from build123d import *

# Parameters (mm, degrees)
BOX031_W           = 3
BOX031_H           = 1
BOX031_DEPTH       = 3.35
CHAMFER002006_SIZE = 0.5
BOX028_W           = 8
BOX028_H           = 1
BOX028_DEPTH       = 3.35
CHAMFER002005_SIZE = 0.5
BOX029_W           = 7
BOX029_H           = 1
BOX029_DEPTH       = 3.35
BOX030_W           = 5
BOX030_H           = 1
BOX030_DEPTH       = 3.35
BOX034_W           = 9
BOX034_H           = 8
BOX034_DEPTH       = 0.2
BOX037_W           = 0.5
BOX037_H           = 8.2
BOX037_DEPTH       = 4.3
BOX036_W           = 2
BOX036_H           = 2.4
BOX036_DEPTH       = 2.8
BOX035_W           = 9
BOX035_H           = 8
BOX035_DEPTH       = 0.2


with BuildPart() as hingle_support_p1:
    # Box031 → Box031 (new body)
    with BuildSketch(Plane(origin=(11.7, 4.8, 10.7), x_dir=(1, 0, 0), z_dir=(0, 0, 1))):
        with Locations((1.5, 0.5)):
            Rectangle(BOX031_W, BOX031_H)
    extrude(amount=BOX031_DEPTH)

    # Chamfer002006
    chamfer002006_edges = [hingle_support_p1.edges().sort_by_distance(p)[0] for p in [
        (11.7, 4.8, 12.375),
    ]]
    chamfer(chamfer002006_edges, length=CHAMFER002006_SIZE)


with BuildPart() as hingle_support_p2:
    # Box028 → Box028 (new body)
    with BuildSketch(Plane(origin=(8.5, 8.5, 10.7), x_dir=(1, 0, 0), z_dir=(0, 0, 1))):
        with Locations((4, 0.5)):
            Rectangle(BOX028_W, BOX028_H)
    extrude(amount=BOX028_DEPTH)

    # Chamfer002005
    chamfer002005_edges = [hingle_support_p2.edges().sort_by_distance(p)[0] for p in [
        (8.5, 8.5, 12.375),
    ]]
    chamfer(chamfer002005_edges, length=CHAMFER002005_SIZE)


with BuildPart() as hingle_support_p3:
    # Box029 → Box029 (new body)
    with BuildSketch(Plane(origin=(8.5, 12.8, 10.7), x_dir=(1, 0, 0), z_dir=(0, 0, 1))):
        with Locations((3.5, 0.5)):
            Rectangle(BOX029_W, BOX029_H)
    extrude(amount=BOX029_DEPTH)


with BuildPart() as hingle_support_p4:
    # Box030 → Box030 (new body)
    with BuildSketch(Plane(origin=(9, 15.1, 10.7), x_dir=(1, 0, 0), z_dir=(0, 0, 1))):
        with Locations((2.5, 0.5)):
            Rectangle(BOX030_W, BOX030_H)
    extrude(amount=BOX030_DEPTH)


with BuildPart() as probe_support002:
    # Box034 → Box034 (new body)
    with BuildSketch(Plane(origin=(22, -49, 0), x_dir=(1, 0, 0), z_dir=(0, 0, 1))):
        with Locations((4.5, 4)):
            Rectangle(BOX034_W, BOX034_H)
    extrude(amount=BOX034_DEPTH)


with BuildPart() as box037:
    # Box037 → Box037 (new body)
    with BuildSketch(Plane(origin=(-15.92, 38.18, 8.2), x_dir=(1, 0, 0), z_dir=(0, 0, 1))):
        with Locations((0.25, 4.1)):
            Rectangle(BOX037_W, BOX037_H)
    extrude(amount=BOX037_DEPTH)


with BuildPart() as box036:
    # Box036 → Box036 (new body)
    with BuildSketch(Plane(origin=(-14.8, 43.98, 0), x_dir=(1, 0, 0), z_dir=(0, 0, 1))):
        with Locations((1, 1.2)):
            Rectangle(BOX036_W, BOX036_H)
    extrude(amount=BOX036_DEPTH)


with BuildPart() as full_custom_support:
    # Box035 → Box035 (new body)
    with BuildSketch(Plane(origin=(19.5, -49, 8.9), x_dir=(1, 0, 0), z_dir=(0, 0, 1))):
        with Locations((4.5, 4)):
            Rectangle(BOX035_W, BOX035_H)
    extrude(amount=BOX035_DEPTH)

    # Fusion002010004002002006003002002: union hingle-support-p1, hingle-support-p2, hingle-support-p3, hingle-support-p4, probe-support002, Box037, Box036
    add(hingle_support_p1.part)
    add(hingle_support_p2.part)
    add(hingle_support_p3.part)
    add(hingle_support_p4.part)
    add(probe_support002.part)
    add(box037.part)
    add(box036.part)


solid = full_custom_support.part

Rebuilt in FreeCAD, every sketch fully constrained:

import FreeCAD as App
import Part
import Sketcher


def edges_at(feature, points):
    """Names of the edges that pass closest to the given points."""
    edges = feature.Shape.Edges
    near = lambda p: min(range(len(edges)), key=lambda i: edges[i].distToShape(Part.Vertex(*p))[0])
    return sorted({f"Edge{near(p) + 1}" for p in points})

doc = App.newDocument("Part")
body = doc.addObject("PartDesign::Body", "Body")

# Sketch on XY plane
sketch1 = body.newObject("Sketcher::SketchObject", "Sketch")
sketch1.AttachmentSupport = (doc.getObject("XY_Plane"), [""])
sketch1.MapMode = "FlatFace"
sketch1.AttachmentOffset = App.Placement(App.Vector(0, 0, 10.7), App.Rotation())
sketch1.addGeometry([
    Part.LineSegment(App.Vector(11.7, 5.8, 0), App.Vector(11.7, 4.8, 0)),
    Part.LineSegment(App.Vector(11.7, 4.8, 0), App.Vector(14.7, 4.8, 0)),
    Part.LineSegment(App.Vector(14.7, 4.8, 0), App.Vector(14.7, 5.8, 0)),
    Part.LineSegment(App.Vector(14.7, 5.8, 0), App.Vector(11.7, 5.8, 0)),
], False)
sketch1.addConstraint([
    Sketcher.Constraint("Coincident", 0, 2, 1, 1),
    Sketcher.Constraint("Coincident", 1, 2, 2, 1),
    Sketcher.Constraint("Coincident", 2, 2, 3, 1),
    Sketcher.Constraint("Coincident", 3, 2, 0, 1),
    Sketcher.Constraint("Vertical", 0),
    Sketcher.Constraint("Horizontal", 1),
    Sketcher.Constraint("Vertical", 2),
    Sketcher.Constraint("Horizontal", 3),
    Sketcher.Constraint("DistanceX", 1, 1, 1, 2, 3.0),
    Sketcher.Constraint("DistanceY", 0, 2, 0, 1, 1.0),
    Sketcher.Constraint("DistanceX", -1, 1, 0, 2, 11.7),
    Sketcher.Constraint("DistanceY", -1, 1, 0, 2, 4.8),
])
pad1 = body.newObject("PartDesign::Pad", "Pad")
pad1.Profile = sketch1
pad1.Length = 3.35
doc.recompute()

chamfer = body.newObject("PartDesign::Chamfer", "Chamfer")
chamfer.Base = (pad1, edges_at(pad1, [(11.7, 4.8, 12.375)]))
chamfer.Size = 0.5
body2 = doc.addObject("PartDesign::Body", "Body001")

# Sketch on XY plane
sketch2 = body2.newObject("Sketcher::SketchObject", "Sketch001")
sketch2.AttachmentSupport = (doc.getObject("XY_Plane001"), [""])
sketch2.MapMode = "FlatFace"
sketch2.AttachmentOffset = App.Placement(App.Vector(0, 0, 10.7), App.Rotation())
sketch2.addGeometry([
    Part.LineSegment(App.Vector(8.5, 9.5, 0), App.Vector(8.5, 8.5, 0)),
    Part.LineSegment(App.Vector(8.5, 8.5, 0), App.Vector(16.5, 8.5, 0)),
    Part.LineSegment(App.Vector(16.5, 8.5, 0), App.Vector(16.5, 9.5, 0)),
    Part.LineSegment(App.Vector(16.5, 9.5, 0), App.Vector(8.5, 9.5, 0)),
], False)
sketch2.addConstraint([
    Sketcher.Constraint("Coincident", 0, 2, 1, 1),
    Sketcher.Constraint("Coincident", 1, 2, 2, 1),
    Sketcher.Constraint("Coincident", 2, 2, 3, 1),
    Sketcher.Constraint("Coincident", 3, 2, 0, 1),
    Sketcher.Constraint("Vertical", 0),
    Sketcher.Constraint("Horizontal", 1),
    Sketcher.Constraint("Vertical", 2),
    Sketcher.Constraint("Horizontal", 3),
    Sketcher.Constraint("DistanceX", 1, 1, 1, 2, 8.0),
    Sketcher.Constraint("DistanceY", 0, 2, 0, 1, 1.0),
    Sketcher.Constraint("DistanceX", -1, 1, 0, 2, 8.5),
    Sketcher.Constraint("DistanceY", -1, 1, 0, 2, 8.5),
])
pad2 = body2.newObject("PartDesign::Pad", "Pad001")
pad2.Profile = sketch2
pad2.Length = 3.35
doc.recompute()

chamfer2 = body2.newObject("PartDesign::Chamfer", "Chamfer001")
chamfer2.Base = (pad2, edges_at(pad2, [(8.5, 8.5, 12.375)]))
chamfer2.Size = 0.5
body3 = doc.addObject("PartDesign::Body", "Body002")

# Sketch on XY plane
sketch3 = body3.newObject("Sketcher::SketchObject", "Sketch002")
sketch3.AttachmentSupport = (doc.getObject("XY_Plane002"), [""])
sketch3.MapMode = "FlatFace"
sketch3.AttachmentOffset = App.Placement(App.Vector(0, 0, 10.7), App.Rotation())
sketch3.addGeometry([
    Part.LineSegment(App.Vector(8.5, 13.8, 0), App.Vector(8.5, 12.8, 0)),
    Part.LineSegment(App.Vector(8.5, 12.8, 0), App.Vector(15.5, 12.8, 0)),
    Part.LineSegment(App.Vector(15.5, 12.8, 0), App.Vector(15.5, 13.8, 0)),
    Part.LineSegment(App.Vector(15.5, 13.8, 0), App.Vector(8.5, 13.8, 0)),
], False)
sketch3.addConstraint([
    Sketcher.Constraint("Coincident", 0, 2, 1, 1),
    Sketcher.Constraint("Coincident", 1, 2, 2, 1),
    Sketcher.Constraint("Coincident", 2, 2, 3, 1),
    Sketcher.Constraint("Coincident", 3, 2, 0, 1),
    Sketcher.Constraint("Vertical", 0),
    Sketcher.Constraint("Horizontal", 1),
    Sketcher.Constraint("Vertical", 2),
    Sketcher.Constraint("Horizontal", 3),
    Sketcher.Constraint("DistanceX", 1, 1, 1, 2, 7.0),
    Sketcher.Constraint("DistanceY", 0, 2, 0, 1, 1.0),
    Sketcher.Constraint("DistanceX", -1, 1, 0, 2, 8.5),
    Sketcher.Constraint("DistanceY", -1, 1, 0, 2, 12.8),
])
pad3 = body3.newObject("PartDesign::Pad", "Pad002")
pad3.Profile = sketch3
pad3.Length = 3.35
body4 = doc.addObject("PartDesign::Body", "Body003")

# Sketch on XY plane
sketch4 = body4.newObject("Sketcher::SketchObject", "Sketch003")
sketch4.AttachmentSupport = (doc.getObject("XY_Plane003"), [""])
sketch4.MapMode = "FlatFace"
sketch4.AttachmentOffset = App.Placement(App.Vector(0, 0, 10.7), App.Rotation())
sketch4.addGeometry([
    Part.LineSegment(App.Vector(9, 16.1, 0), App.Vector(9, 15.1, 0)),
    Part.LineSegment(App.Vector(9, 15.1, 0), App.Vector(14, 15.1, 0)),
    Part.LineSegment(App.Vector(14, 15.1, 0), App.Vector(14, 16.1, 0)),
    Part.LineSegment(App.Vector(14, 16.1, 0), App.Vector(9, 16.1, 0)),
], False)
sketch4.addConstraint([
    Sketcher.Constraint("Coincident", 0, 2, 1, 1),
    Sketcher.Constraint("Coincident", 1, 2, 2, 1),
    Sketcher.Constraint("Coincident", 2, 2, 3, 1),
    Sketcher.Constraint("Coincident", 3, 2, 0, 1),
    Sketcher.Constraint("Vertical", 0),
    Sketcher.Constraint("Horizontal", 1),
    Sketcher.Constraint("Vertical", 2),
    Sketcher.Constraint("Horizontal", 3),
    Sketcher.Constraint("DistanceX", 1, 1, 1, 2, 5.0),
    Sketcher.Constraint("DistanceY", 0, 2, 0, 1, 1.0),
    Sketcher.Constraint("DistanceX", -1, 1, 0, 2, 9.0),
    Sketcher.Constraint("DistanceY", -1, 1, 0, 2, 15.1),
])
pad4 = body4.newObject("PartDesign::Pad", "Pad003")
pad4.Profile = sketch4
pad4.Length = 3.35
body5 = doc.addObject("PartDesign::Body", "Body004")

# Sketch on XY plane
sketch5 = body5.newObject("Sketcher::SketchObject", "Sketch004")
sketch5.AttachmentSupport = (doc.getObject("XY_Plane004"), [""])
sketch5.MapMode = "FlatFace"
sketch5.addGeometry([
    Part.LineSegment(App.Vector(22, -41, 0), App.Vector(22, -49, 0)),
    Part.LineSegment(App.Vector(22, -49, 0), App.Vector(31, -49, 0)),
    Part.LineSegment(App.Vector(31, -49, 0), App.Vector(31, -41, 0)),
    Part.LineSegment(App.Vector(31, -41, 0), App.Vector(22, -41, 0)),
], False)
sketch5.addConstraint([
    Sketcher.Constraint("Coincident", 0, 2, 1, 1),
    Sketcher.Constraint("Coincident", 1, 2, 2, 1),
    Sketcher.Constraint("Coincident", 2, 2, 3, 1),
    Sketcher.Constraint("Coincident", 3, 2, 0, 1),
    Sketcher.Constraint("Vertical", 0),
    Sketcher.Constraint("Horizontal", 1),
    Sketcher.Constraint("Vertical", 2),
    Sketcher.Constraint("Horizontal", 3),
    Sketcher.Constraint("DistanceX", 1, 1, 1, 2, 9.0),
    Sketcher.Constraint("DistanceY", 0, 2, 0, 1, 8.0),
    Sketcher.Constraint("DistanceX", -1, 1, 0, 2, 22.0),
    Sketcher.Constraint("DistanceY", 0, 2, -1, 1, 49.0),
])
pad5 = body5.newObject("PartDesign::Pad", "Pad004")
pad5.Profile = sketch5
pad5.Length = 0.2
body6 = doc.addObject("PartDesign::Body", "Body005")

# Sketch on XY plane
sketch6 = body6.newObject("Sketcher::SketchObject", "Sketch005")
sketch6.AttachmentSupport = (doc.getObject("XY_Plane005"), [""])
sketch6.MapMode = "FlatFace"
sketch6.AttachmentOffset = App.Placement(App.Vector(0, 0, 8.2), App.Rotation())
sketch6.addGeometry([
    Part.LineSegment(App.Vector(-15.9, 46.4, 0), App.Vector(-15.9, 38.2, 0)),
    Part.LineSegment(App.Vector(-15.9, 38.2, 0), App.Vector(-15.4, 38.2, 0)),
    Part.LineSegment(App.Vector(-15.4, 38.2, 0), App.Vector(-15.4, 46.4, 0)),
    Part.LineSegment(App.Vector(-15.4, 46.4, 0), App.Vector(-15.9, 46.4, 0)),
], False)
sketch6.addConstraint([
    Sketcher.Constraint("Coincident", 0, 2, 1, 1),
    Sketcher.Constraint("Coincident", 1, 2, 2, 1),
    Sketcher.Constraint("Coincident", 2, 2, 3, 1),
    Sketcher.Constraint("Coincident", 3, 2, 0, 1),
    Sketcher.Constraint("Vertical", 0),
    Sketcher.Constraint("Horizontal", 1),
    Sketcher.Constraint("Vertical", 2),
    Sketcher.Constraint("Horizontal", 3),
    Sketcher.Constraint("DistanceX", 1, 1, 1, 2, 0.5),
    Sketcher.Constraint("DistanceY", 0, 2, 0, 1, 8.2),
    Sketcher.Constraint("DistanceX", 0, 2, -1, 1, 15.92),
    Sketcher.Constraint("DistanceY", -1, 1, 0, 2, 38.18),
])
pad6 = body6.newObject("PartDesign::Pad", "Pad005")
pad6.Profile = sketch6
pad6.Length = 4.3
body7 = doc.addObject("PartDesign::Body", "Body006")

# Sketch on XY plane
sketch7 = body7.newObject("Sketcher::SketchObject", "Sketch006")
sketch7.AttachmentSupport = (doc.getObject("XY_Plane006"), [""])
sketch7.MapMode = "FlatFace"
sketch7.addGeometry([
    Part.LineSegment(App.Vector(-14.8, 46.4, 0), App.Vector(-14.8, 44, 0)),
    Part.LineSegment(App.Vector(-14.8, 44, 0), App.Vector(-12.8, 44, 0)),
    Part.LineSegment(App.Vector(-12.8, 44, 0), App.Vector(-12.8, 46.4, 0)),
    Part.LineSegment(App.Vector(-12.8, 46.4, 0), App.Vector(-14.8, 46.4, 0)),
], False)
sketch7.addConstraint([
    Sketcher.Constraint("Coincident", 0, 2, 1, 1),
    Sketcher.Constraint("Coincident", 1, 2, 2, 1),
    Sketcher.Constraint("Coincident", 2, 2, 3, 1),
    Sketcher.Constraint("Coincident", 3, 2, 0, 1),
    Sketcher.Constraint("Vertical", 0),
    Sketcher.Constraint("Horizontal", 1),
    Sketcher.Constraint("Vertical", 2),
    Sketcher.Constraint("Horizontal", 3),
    Sketcher.Constraint("DistanceX", 1, 1, 1, 2, 2.0),
    Sketcher.Constraint("DistanceY", 0, 2, 0, 1, 2.4),
    Sketcher.Constraint("DistanceX", 0, 2, -1, 1, 14.8),
    Sketcher.Constraint("DistanceY", -1, 1, 0, 2, 43.98),
])
pad7 = body7.newObject("PartDesign::Pad", "Pad006")
pad7.Profile = sketch7
pad7.Length = 2.8
body8 = doc.addObject("PartDesign::Body", "Body007")
body8.AllowCompound = True

# Sketch on XY plane
sketch8 = body8.newObject("Sketcher::SketchObject", "Sketch007")
sketch8.AttachmentSupport = (doc.getObject("XY_Plane007"), [""])
sketch8.MapMode = "FlatFace"
sketch8.AttachmentOffset = App.Placement(App.Vector(0, 0, 8.9), App.Rotation())
sketch8.addGeometry([
    Part.LineSegment(App.Vector(20, -41, 0), App.Vector(20, -49, 0)),
    Part.LineSegment(App.Vector(20, -49, 0), App.Vector(28, -49, 0)),
    Part.LineSegment(App.Vector(28, -49, 0), App.Vector(28, -41, 0)),
    Part.LineSegment(App.Vector(28, -41, 0), App.Vector(20, -41, 0)),
], False)
sketch8.addConstraint([
    Sketcher.Constraint("Coincident", 0, 2, 1, 1),
    Sketcher.Constraint("Coincident", 1, 2, 2, 1),
    Sketcher.Constraint("Coincident", 2, 2, 3, 1),
    Sketcher.Constraint("Coincident", 3, 2, 0, 1),
    Sketcher.Constraint("Vertical", 0),
    Sketcher.Constraint("Horizontal", 1),
    Sketcher.Constraint("Vertical", 2),
    Sketcher.Constraint("Horizontal", 3),
    Sketcher.Constraint("DistanceX", 1, 1, 1, 2, 9.0),
    Sketcher.Constraint("DistanceY", 0, 2, 0, 1, 8.0),
    Sketcher.Constraint("DistanceY", 0, 2, -1, 1, 49.0),
    Sketcher.Constraint("DistanceX", -1, 1, 0, 2, 19.5),
])
pad8 = body8.newObject("PartDesign::Pad", "Pad007")
pad8.Profile = sketch8
pad8.Length = 0.2
doc.recompute()

boolean = body8.newObject("PartDesign::Boolean", "Boolean")
boolean.Type = "Fuse"
boolean.addObjects([body])
doc.recompute()

boolean2 = body8.newObject("PartDesign::Boolean", "Boolean001")
boolean2.Type = "Fuse"
boolean2.addObjects([body2])
doc.recompute()

boolean3 = body8.newObject("PartDesign::Boolean", "Boolean002")
boolean3.Type = "Fuse"
boolean3.addObjects([body3])
doc.recompute()

boolean4 = body8.newObject("PartDesign::Boolean", "Boolean003")
boolean4.Type = "Fuse"
boolean4.addObjects([body4])
doc.recompute()

boolean5 = body8.newObject("PartDesign::Boolean", "Boolean004")
boolean5.Type = "Fuse"
boolean5.addObjects([body5])
doc.recompute()

boolean6 = body8.newObject("PartDesign::Boolean", "Boolean005")
boolean6.Type = "Fuse"
boolean6.addObjects([body6])
doc.recompute()

boolean7 = body8.newObject("PartDesign::Boolean", "Boolean006")
boolean7.Type = "Fuse"
boolean7.addObjects([body7])

doc.recompute()
